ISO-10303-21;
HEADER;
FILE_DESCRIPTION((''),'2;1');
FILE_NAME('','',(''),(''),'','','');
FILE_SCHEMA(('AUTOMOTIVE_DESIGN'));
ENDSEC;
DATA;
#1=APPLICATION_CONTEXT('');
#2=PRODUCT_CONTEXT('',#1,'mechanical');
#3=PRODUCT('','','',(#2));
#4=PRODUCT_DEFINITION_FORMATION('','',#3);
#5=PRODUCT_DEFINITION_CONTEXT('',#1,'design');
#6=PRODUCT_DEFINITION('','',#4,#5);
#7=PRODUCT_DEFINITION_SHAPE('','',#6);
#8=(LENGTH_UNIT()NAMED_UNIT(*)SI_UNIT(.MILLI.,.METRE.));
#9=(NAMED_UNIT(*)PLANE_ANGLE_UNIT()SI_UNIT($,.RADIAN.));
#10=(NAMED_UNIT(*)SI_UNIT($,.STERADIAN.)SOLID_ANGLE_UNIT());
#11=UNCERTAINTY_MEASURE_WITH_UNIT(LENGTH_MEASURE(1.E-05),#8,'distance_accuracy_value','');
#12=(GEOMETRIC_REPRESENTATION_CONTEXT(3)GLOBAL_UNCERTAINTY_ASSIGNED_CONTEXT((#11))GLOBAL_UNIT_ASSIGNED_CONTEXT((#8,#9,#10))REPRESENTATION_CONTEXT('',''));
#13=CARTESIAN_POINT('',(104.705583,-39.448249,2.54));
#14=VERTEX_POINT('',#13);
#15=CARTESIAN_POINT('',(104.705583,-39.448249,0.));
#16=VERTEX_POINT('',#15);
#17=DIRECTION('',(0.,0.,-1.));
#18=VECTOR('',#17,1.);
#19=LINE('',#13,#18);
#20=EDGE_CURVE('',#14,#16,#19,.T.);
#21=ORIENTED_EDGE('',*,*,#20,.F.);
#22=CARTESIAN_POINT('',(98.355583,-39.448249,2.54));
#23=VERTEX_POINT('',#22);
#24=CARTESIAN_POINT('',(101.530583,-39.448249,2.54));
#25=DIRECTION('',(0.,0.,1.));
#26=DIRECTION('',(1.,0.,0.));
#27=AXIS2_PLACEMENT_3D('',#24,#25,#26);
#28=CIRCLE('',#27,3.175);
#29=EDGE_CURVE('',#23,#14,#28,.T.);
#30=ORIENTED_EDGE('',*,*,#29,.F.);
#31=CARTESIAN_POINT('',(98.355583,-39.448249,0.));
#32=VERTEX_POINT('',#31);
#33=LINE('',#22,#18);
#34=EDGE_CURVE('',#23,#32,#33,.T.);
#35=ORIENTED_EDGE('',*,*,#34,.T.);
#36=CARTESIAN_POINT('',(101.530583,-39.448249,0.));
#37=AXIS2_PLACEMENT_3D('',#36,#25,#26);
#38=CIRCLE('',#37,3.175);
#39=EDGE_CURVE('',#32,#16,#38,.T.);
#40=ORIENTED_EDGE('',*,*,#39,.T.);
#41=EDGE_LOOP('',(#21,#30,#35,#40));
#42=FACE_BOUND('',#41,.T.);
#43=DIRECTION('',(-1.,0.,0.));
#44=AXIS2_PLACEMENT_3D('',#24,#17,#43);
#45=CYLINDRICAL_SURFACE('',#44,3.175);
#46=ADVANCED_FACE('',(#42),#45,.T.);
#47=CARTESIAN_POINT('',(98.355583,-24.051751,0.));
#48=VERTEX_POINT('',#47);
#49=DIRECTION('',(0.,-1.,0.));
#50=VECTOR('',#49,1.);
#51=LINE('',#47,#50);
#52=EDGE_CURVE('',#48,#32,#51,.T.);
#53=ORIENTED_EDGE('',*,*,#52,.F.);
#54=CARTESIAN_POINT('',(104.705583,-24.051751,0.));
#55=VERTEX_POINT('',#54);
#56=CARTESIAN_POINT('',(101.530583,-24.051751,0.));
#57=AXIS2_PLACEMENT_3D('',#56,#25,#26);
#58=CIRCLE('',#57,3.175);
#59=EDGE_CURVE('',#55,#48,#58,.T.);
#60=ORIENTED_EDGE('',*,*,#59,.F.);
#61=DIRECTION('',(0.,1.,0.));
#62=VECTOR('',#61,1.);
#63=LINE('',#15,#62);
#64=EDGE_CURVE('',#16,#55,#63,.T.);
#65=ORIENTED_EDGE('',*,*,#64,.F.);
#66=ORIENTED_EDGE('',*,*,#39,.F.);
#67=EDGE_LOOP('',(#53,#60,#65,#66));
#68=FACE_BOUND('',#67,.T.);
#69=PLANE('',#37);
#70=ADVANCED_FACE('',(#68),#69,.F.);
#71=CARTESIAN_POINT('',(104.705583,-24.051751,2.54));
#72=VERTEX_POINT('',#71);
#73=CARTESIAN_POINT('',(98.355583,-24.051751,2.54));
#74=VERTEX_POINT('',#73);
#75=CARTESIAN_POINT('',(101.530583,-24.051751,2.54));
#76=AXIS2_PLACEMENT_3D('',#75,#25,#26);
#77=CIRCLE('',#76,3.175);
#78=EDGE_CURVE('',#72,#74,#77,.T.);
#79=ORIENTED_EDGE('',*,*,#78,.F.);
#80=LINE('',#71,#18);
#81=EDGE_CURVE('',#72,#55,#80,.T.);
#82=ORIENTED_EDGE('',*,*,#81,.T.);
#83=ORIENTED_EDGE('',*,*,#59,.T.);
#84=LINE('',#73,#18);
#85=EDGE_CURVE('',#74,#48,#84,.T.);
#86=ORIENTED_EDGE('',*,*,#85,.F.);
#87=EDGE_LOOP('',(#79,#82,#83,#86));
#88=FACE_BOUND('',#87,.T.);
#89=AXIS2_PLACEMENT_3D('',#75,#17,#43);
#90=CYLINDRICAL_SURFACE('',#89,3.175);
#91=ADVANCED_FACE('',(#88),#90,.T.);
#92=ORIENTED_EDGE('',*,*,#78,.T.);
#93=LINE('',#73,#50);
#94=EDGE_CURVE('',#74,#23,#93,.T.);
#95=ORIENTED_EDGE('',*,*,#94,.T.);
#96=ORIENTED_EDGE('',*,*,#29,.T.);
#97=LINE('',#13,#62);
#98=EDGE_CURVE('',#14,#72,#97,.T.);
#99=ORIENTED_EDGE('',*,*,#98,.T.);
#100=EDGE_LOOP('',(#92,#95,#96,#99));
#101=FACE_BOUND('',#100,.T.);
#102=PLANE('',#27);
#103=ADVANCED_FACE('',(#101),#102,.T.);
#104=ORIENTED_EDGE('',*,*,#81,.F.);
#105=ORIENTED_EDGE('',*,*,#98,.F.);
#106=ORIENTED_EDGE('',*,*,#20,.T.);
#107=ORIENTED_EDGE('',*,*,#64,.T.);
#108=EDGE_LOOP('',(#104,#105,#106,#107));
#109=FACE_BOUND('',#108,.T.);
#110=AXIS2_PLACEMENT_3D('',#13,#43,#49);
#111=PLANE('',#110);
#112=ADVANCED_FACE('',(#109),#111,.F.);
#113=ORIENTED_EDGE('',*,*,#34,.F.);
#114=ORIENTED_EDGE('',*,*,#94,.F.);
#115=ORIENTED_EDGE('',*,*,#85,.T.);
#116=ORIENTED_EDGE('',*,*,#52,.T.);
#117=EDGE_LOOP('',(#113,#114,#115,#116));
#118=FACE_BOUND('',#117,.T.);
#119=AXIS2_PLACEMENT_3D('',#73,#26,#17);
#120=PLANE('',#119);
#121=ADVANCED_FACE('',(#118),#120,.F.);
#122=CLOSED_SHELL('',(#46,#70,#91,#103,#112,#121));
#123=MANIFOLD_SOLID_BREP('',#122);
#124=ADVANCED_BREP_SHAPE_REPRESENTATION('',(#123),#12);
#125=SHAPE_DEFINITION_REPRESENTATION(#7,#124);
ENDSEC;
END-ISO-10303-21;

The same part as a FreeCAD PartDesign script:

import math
import FreeCAD as App
import Part
import Sketcher
Q = App.Units.Quantity

doc = App.newDocument("Part")
body = doc.addObject("PartDesign::Body", "Body")

# Sketch on XY plane
sketch1 = body.newObject("Sketcher::SketchObject", "Sketch")
sketch1.AttachmentSupport = (doc.getObject("XY_Plane"), [""])
sketch1.MapMode = "FlatFace"
sketch1.addGeometry(Part.LineSegment(App.Vector(104.7, -39.4, 0), App.Vector(104.7, -24.1, 0)), False)
sketch1.addGeometry(Part.ArcOfCircle(Part.Circle(App.Vector(101.5, -24.1, 0), App.Vector(0, 0, 1), 3.2), math.radians(0), math.radians(180)), False)
sketch1.addGeometry(Part.LineSegment(App.Vector(98.4, -24.1, 0), App.Vector(98.4, -39.4, 0)), False)
sketch1.addGeometry(Part.ArcOfCircle(Part.Circle(App.Vector(101.5, -39.4, 0), App.Vector(0, 0, 1), 3.2), math.radians(180), math.radians(360)), False)
sketch1.addConstraint(Sketcher.Constraint("Tangent", 0, 2, 1, 1))
sketch1.addConstraint(Sketcher.Constraint("Tangent", 1, 2, 2, 1))
sketch1.addConstraint(Sketcher.Constraint("Tangent", 2, 2, 3, 1))
sketch1.addConstraint(Sketcher.Constraint("Tangent", 3, 2, 0, 1))
sketch1.addConstraint(Sketcher.Constraint("Vertical", 0))
sketch1.addConstraint(Sketcher.Constraint("Vertical", 2))
sketch1.addConstraint(Sketcher.Constraint("Radius", 1, Q("0.125 in")))
sketch1.addConstraint(Sketcher.Constraint("DistanceY", 0, 1, 0, 2, Q("15.396497 mm")))
sketch1.addConstraint(Sketcher.Constraint("DistanceY", 1, 3, -1, 1, Q("24.051751 mm")))
sketch1.addConstraint(Sketcher.Constraint("DistanceX", -1, 1, 1, 3, Q("101.530583 mm")))
pad1 = body.newObject("PartDesign::Pad", "Pad")
pad1.Profile = sketch1
pad1.Length = Q("0.1 in")

doc.recompute()
